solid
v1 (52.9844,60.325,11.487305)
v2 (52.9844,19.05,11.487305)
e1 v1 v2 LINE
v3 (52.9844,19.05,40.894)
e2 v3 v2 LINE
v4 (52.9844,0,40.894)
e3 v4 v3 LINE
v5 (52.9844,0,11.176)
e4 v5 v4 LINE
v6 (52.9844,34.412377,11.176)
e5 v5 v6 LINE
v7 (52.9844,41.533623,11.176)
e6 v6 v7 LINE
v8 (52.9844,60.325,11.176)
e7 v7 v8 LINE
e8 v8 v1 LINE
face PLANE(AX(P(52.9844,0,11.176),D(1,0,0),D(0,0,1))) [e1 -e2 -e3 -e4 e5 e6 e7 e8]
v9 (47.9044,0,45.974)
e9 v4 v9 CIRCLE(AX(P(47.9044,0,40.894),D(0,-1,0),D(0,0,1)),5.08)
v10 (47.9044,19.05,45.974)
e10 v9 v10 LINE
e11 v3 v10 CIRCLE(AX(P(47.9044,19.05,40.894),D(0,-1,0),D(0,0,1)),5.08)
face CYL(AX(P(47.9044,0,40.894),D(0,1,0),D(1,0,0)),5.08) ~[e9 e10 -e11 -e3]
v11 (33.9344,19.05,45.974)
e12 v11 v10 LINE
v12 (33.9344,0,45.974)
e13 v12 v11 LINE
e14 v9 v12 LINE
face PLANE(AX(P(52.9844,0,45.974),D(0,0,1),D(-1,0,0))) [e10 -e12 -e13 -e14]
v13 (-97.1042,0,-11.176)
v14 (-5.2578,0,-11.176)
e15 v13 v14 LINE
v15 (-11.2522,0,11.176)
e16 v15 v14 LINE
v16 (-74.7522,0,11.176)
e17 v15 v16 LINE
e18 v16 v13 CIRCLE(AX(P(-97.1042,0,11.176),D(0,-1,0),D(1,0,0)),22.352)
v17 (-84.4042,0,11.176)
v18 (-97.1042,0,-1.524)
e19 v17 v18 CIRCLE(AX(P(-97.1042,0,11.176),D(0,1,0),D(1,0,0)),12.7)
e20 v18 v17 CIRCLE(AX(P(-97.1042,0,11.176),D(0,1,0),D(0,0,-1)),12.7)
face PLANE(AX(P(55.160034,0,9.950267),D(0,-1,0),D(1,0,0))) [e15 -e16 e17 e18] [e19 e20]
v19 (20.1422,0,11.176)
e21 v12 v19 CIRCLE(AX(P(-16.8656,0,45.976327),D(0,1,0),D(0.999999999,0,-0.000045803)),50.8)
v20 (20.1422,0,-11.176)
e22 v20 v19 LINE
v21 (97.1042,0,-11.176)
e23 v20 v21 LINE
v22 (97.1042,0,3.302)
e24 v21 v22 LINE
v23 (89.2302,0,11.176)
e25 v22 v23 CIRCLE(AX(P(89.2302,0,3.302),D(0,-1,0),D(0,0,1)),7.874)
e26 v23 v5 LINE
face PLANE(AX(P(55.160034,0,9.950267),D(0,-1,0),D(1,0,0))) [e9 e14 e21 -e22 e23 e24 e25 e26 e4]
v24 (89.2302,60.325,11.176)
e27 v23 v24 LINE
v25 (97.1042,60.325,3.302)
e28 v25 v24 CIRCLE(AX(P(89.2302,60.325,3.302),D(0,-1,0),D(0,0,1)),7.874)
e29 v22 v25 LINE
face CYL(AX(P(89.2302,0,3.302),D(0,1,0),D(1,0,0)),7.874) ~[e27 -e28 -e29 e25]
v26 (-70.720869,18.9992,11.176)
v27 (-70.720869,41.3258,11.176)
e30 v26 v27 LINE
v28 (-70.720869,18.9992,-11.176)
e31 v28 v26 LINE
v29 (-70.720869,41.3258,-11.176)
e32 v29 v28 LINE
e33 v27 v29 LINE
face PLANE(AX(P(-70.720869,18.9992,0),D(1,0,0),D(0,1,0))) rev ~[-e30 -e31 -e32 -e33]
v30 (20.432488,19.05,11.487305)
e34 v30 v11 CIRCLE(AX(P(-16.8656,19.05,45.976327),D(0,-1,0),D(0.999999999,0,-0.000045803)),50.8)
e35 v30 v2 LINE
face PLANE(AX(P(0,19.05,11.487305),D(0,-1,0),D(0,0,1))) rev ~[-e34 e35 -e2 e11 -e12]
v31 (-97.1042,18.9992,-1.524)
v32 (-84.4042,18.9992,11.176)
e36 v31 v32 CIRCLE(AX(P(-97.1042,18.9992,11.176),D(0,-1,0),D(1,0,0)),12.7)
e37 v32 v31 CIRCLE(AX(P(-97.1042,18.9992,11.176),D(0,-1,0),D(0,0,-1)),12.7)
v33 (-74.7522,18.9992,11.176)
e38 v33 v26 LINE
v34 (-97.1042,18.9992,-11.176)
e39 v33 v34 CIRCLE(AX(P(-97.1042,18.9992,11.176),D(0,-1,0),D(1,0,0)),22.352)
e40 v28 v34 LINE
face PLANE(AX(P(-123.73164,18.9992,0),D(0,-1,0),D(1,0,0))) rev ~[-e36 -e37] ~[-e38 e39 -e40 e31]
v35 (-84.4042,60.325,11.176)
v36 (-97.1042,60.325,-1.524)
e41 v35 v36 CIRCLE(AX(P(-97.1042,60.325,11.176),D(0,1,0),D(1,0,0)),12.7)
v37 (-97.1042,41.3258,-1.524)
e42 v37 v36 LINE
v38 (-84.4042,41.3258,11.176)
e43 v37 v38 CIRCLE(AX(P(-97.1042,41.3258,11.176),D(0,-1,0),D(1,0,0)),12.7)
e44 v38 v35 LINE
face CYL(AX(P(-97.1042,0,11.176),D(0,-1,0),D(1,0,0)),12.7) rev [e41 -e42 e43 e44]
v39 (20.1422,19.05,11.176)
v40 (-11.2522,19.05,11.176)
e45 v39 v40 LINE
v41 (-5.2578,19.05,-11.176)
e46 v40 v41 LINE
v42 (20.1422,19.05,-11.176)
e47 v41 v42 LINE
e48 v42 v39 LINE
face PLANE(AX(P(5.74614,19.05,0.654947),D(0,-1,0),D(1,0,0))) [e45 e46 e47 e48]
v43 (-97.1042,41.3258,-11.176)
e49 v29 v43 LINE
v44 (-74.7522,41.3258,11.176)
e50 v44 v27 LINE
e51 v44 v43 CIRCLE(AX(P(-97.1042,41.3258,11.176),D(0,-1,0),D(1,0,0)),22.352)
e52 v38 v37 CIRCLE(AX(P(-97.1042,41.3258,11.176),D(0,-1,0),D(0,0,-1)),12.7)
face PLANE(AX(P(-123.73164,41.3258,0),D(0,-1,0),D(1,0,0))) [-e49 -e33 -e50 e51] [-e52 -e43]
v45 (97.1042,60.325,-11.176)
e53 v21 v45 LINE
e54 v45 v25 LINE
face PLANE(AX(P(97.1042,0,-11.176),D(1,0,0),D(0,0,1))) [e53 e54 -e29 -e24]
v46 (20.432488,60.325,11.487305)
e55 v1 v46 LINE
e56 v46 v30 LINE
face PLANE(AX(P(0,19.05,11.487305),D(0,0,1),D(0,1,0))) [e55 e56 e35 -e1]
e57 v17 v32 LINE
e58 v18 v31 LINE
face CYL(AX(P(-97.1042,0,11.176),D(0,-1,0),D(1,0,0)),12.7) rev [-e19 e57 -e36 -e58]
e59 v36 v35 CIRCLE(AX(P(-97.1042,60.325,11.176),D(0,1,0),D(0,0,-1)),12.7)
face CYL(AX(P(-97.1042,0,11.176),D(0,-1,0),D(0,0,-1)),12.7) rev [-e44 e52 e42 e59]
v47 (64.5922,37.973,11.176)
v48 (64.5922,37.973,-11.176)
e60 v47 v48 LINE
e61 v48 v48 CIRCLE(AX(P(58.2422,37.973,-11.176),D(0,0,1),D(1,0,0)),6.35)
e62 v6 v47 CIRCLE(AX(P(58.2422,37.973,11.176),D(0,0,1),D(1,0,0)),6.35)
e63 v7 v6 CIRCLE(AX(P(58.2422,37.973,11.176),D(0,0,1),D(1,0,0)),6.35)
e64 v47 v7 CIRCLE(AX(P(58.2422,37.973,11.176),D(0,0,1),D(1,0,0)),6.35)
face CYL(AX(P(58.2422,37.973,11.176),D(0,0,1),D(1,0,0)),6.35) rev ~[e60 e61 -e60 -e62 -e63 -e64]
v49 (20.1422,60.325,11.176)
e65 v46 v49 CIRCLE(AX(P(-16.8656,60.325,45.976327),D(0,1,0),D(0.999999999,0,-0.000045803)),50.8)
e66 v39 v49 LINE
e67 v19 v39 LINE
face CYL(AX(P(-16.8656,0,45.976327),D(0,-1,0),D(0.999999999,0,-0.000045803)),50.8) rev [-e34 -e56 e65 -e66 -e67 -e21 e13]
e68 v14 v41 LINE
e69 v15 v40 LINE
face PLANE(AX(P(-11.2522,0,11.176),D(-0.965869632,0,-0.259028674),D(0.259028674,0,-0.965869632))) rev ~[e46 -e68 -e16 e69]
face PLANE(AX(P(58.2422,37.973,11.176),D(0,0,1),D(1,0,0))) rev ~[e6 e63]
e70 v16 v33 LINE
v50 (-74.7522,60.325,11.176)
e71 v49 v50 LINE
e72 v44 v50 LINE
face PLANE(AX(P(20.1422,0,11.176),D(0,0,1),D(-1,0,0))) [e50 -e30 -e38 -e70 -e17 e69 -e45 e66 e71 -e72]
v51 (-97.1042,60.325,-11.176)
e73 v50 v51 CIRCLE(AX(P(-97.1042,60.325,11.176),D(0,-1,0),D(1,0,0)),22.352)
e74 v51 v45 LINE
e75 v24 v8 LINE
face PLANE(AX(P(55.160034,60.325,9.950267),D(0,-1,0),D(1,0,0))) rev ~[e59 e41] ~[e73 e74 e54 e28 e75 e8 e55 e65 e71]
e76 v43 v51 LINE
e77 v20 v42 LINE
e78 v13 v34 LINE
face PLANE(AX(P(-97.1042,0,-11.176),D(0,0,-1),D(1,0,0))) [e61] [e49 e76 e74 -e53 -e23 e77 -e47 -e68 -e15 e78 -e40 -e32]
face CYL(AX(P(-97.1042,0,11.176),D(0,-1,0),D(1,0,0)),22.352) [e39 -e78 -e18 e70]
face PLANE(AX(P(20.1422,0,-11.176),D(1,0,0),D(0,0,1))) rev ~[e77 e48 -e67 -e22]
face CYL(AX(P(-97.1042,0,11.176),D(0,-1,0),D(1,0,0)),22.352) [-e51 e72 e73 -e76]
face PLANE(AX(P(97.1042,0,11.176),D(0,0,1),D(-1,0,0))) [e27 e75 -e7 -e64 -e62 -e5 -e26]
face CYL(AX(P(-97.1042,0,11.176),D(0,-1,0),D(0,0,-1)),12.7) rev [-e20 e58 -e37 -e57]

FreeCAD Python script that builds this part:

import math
import FreeCAD as App
import Part
import Sketcher
from FreeCAD import Vector
Q = App.Units.Quantity


def edges_at(feature, points):
    """Names of the edges that pass closest to the given points."""
    edges = feature.Shape.Edges
    near = lambda p: min(range(len(edges)), key=lambda i: edges[i].distToShape(Part.Vertex(*p))[0])
    return sorted({f"Edge{near(p) + 1}" for p in points})

doc = App.newDocument("Part")
body = doc.addObject("PartDesign::Body", "Body")

sketch1 = body.newObject("Sketcher::SketchObject", "Sketch")
sketch1.AttachmentSupport = (doc.getObject("XZ_Plane"), [""])
sketch1.MapMode = "FlatFace"
sketch1.addGeometry([
    Part.LineSegment(Vector(97, -11, 0), Vector(97, 11, 0)),
    Part.LineSegment(Vector(97, 11, 0), Vector(53, 11, 0)),
    Part.LineSegment(Vector(53, 11, 0), Vector(53, 46, 0)),
    Part.LineSegment(Vector(53, 46, 0), Vector(34, 46, 0)),
    Part.ArcOfCircle(Part.Circle(Vector(-17, 46, 0), Vector(0, 0, 1), 51), math.radians(-43), math.radians(0)),
    Part.LineSegment(Vector(20, 11, 0), Vector(-75, 11, 0)),
    Part.ArcOfCircle(Part.Circle(Vector(-97, 11, 0), Vector(0, 0, 1), 22), math.radians(0), math.radians(270)),
    Part.LineSegment(Vector(-97, -11, 0), Vector(97, -11, 0)),
    Part.ArcOfCircle(Part.Circle(Vector(-97, 11, 0), Vector(0, 0, 1), 13), math.radians(-90), math.radians(0)),
    Part.ArcOfCircle(Part.Circle(Vector(-97, 11, 0), Vector(0, 0, 1), 13), math.radians(0), math.radians(270)),
], False)
sketch1.addConstraint([
    Sketcher.Constraint("Coincident", 0, 2, 1, 1),
    Sketcher.Constraint("Coincident", 1, 2, 2, 1),
    Sketcher.Constraint("Coincident", 2, 2, 3, 1),
    Sketcher.Constraint("Coincident", 3, 2, 4, 2),
    Sketcher.Constraint("Coincident", 4, 1, 5, 1),
    Sketcher.Constraint("Coincident", 5, 2, 6, 1),
    Sketcher.Constraint("Tangent", 6, 2, 7, 1),
    Sketcher.Constraint("Coincident", 7, 2, 0, 1),
    Sketcher.Constraint("Tangent", 8, 1, 9, 2),
    Sketcher.Constraint("Coincident", 9, 1, 8, 2),
    Sketcher.Constraint("Vertical", 0),
    Sketcher.Constraint("Horizontal", 1),
    Sketcher.Constraint("Vertical", 2),
    Sketcher.Constraint("Horizontal", 3),
    Sketcher.Constraint("Horizontal", 5),
    Sketcher.Constraint("Horizontal", 7),
    Sketcher.Constraint("Coincident", 8, 3, 6, 3),
    Sketcher.Constraint("Symmetric", 0, 2, 6, 2, -1, 1),
    Sketcher.Constraint("Horizontal", 9, 3, 0, 2),
    Sketcher.Constraint("Horizontal", 1, 2, 4, 1),
    Sketcher.Constraint("Horizontal", 5, 2, 9, 1),
    Sketcher.Constraint("Vertical", 6, 2, 8, 1),
    Sketcher.Constraint("Radius", 4, Q("2 in")),
    Sketcher.Constraint("Radius", 8, Q("0.5 in")),
    Sketcher.Constraint("Radius", 6, Q("0.88 in")),
    Sketcher.Constraint("DistanceX", 3, 2, 3, 1, Q("0.75 in")),
    Sketcher.Constraint("DistanceY", 2, 1, 2, 2, Q("1.37 in")),
    Sketcher.Constraint("DistanceX", 1, 2, 1, 1, Q("1.737 in")),
    Sketcher.Constraint("DistanceX", 5, 2, 5, 1, Q("3.736 in")),
    Sketcher.Constraint("DistanceX", 7, 1, 7, 2, Q("7.646 in")),
])
pad1 = body.newObject("PartDesign::Pad", "Pad")
pad1.Profile = sketch1
pad1.Length = Q("2.375 in")
pad1.Reversed = True

sketch2 = body.newObject("Sketcher::SketchObject", "Sketch001")
sketch2.AttachmentSupport = (doc.getObject("XY_Plane"), [""])
sketch2.MapMode = "FlatFace"
sketch2.addGeometry([
    Part.LineSegment(Vector(-124, 41, 0), Vector(-124, 19, 0)),
    Part.LineSegment(Vector(-124, 19, 0), Vector(-71, 19, 0)),
    Part.LineSegment(Vector(-71, 19, 0), Vector(-71, 41, 0)),
    Part.LineSegment(Vector(-71, 41, 0), Vector(-124, 41, 0)),
], False)
sketch2.addConstraint([
    Sketcher.Constraint("Coincident", 0, 2, 1, 1),
    Sketcher.Constraint("Coincident", 1, 2, 2, 1),
    Sketcher.Constraint("Coincident", 2, 2, 3, 1),
    Sketcher.Constraint("Coincident", 3, 2, 0, 1),
    Sketcher.Constraint("Vertical", 0),
    Sketcher.Constraint("Horizontal", 1),
    Sketcher.Constraint("Vertical", 2),
    Sketcher.Constraint("Horizontal", 3),
    Sketcher.Constraint("DistanceY", 0, 2, 0, 1, Q("0.879 in")),
    Sketcher.Constraint("DistanceY", -1, 1, 0, 2, Q("0.748 in")),
    Sketcher.Constraint("DistanceX", 1, 1, 1, 2, 53.010772),
    Sketcher.Constraint("DistanceX", 0, 2, -1, 1, 123.73164),
])
pocket1 = body.newObject("PartDesign::Pocket", "Pocket")
pocket1.Profile = sketch2
pocket1.Length = 88.525169
pocket1.Midplane = True

sketch3 = body.newObject("Sketcher::SketchObject", "Sketch002")
sketch3.AttachmentSupport = (doc.getObject("YZ_Plane"), [""])
sketch3.MapMode = "FlatFace"
sketch3.addGeometry([
    Part.LineSegment(Vector(19, 46, 0), Vector(19, 11, 0)),
    Part.LineSegment(Vector(19, 11, 0), Vector(61, 11, 0)),
    Part.LineSegment(Vector(61, 11, 0), Vector(61, 46, 0)),
    Part.LineSegment(Vector(61, 46, 0), Vector(19, 46, 0)),
], False)
sketch3.addConstraint([
    Sketcher.Constraint("Coincident", 0, 2, 1, 1),
    Sketcher.Constraint("Coincident", 1, 2, 2, 1),
    Sketcher.Constraint("Coincident", 2, 2, 3, 1),
    Sketcher.Constraint("Coincident", 3, 2, 0, 1),
    Sketcher.Constraint("Vertical", 0),
    Sketcher.Constraint("Horizontal", 1),
    Sketcher.Constraint("Vertical", 2),
    Sketcher.Constraint("Horizontal", 3),
    Sketcher.Constraint("DistanceX", 1, 1, 1, 2, Q("1.65 in")),
    Sketcher.Constraint("DistanceX", -1, 1, 1, 2, Q("2.4 in")),
    Sketcher.Constraint("DistanceY", 0, 2, 0, 1, 34.67074),
    Sketcher.Constraint("DistanceY", -1, 1, 0, 2, 11.487305),
])
pocket2 = body.newObject("PartDesign::Pocket", "Pocket001")
pocket2.Profile = sketch3
pocket2.Length = 77.503875
pocket2.Reversed = True
doc.recompute()

fillet = body.newObject("PartDesign::Fillet", "Fillet")
fillet.Base = (pocket2, edges_at(pocket2, [(97.104, 30.163, 11.176)]))
fillet.Radius = Q("0.31 in")
doc.recompute()

fillet2 = body.newObject("PartDesign::Fillet", "Fillet001")
fillet2.Base = (fillet, edges_at(fillet, [(52.984, 9.525, 45.974)]))
fillet2.Radius = Q("0.2 in")

sketch4 = body.newObject("Sketcher::SketchObject", "Sketch003")
sketch4.AttachmentSupport = (doc.getObject("XZ_Plane"), [""])
sketch4.MapMode = "FlatFace"
sketch4.addGeometry([
    Part.LineSegment(Vector(-5, -11, 0), Vector(20, -11, 0)),
    Part.LineSegment(Vector(20, -11, 0), Vector(20, 11, 0)),
    Part.LineSegment(Vector(20, 11, 0), Vector(-11, 11, 0)),
    Part.LineSegment(Vector(-11, 11, 0), Vector(-5, -11, 0)),
], False)
sketch4.addConstraint([
    Sketcher.Constraint("Coincident", 0, 2, 1, 1),
    Sketcher.Constraint("Coincident", 1, 2, 2, 1),
    Sketcher.Constraint("Coincident", 2, 2, 3, 1),
    Sketcher.Constraint("Coincident", 3, 2, 0, 1),
    Sketcher.Constraint("Horizontal", 0),
    Sketcher.Constraint("Vertical", 1),
    Sketcher.Constraint("Horizontal", 2),
    Sketcher.Constraint("DistanceX", 0, 1, 0, 2, Q("1 in")),
    Sketcher.Constraint("DistanceY", 1, 1, 1, 2, Q("0.88 in")),
    Sketcher.Constraint("DistanceX", 2, 2, 2, 1, Q("1.236 in")),
    Sketcher.Constraint("DistanceY", 0, 2, -1, 1, Q("0.44 in")),
    Sketcher.Constraint("DistanceX", -1, 1, 0, 2, Q("0.793 in")),
])
pocket3 = body.newObject("PartDesign::Pocket", "Pocket002")
pocket3.Profile = sketch4
pocket3.Length = Q("0.75 in")

sketch5 = body.newObject("Sketcher::SketchObject", "Sketch004")
sketch5.AttachmentSupport = (doc.getObject("XY_Plane"), [""])
sketch5.MapMode = "FlatFace"
sketch5.AttachmentOffset = App.Placement(Vector(0, 0, 0.44 * 25.4), App.Rotation())
sketch5.addGeometry(Part.Circle(Vector(58, 38, 0), Vector(0, 0, 1), 6), False)
sketch5.addConstraint([
    Sketcher.Constraint("Diameter", 0, Q("0.5 in")),
    Sketcher.Constraint("DistanceX", -1, 1, 0, 3, Q("2.293 in")),
    Sketcher.Constraint("DistanceY", -1, 1, 0, 3, Q("1.495 in")),
])
pocket4 = body.newObject("PartDesign::Pocket", "Pocket003")
pocket4.Profile = sketch5
pocket4.Type = "ThroughAll"

doc.recompute()
